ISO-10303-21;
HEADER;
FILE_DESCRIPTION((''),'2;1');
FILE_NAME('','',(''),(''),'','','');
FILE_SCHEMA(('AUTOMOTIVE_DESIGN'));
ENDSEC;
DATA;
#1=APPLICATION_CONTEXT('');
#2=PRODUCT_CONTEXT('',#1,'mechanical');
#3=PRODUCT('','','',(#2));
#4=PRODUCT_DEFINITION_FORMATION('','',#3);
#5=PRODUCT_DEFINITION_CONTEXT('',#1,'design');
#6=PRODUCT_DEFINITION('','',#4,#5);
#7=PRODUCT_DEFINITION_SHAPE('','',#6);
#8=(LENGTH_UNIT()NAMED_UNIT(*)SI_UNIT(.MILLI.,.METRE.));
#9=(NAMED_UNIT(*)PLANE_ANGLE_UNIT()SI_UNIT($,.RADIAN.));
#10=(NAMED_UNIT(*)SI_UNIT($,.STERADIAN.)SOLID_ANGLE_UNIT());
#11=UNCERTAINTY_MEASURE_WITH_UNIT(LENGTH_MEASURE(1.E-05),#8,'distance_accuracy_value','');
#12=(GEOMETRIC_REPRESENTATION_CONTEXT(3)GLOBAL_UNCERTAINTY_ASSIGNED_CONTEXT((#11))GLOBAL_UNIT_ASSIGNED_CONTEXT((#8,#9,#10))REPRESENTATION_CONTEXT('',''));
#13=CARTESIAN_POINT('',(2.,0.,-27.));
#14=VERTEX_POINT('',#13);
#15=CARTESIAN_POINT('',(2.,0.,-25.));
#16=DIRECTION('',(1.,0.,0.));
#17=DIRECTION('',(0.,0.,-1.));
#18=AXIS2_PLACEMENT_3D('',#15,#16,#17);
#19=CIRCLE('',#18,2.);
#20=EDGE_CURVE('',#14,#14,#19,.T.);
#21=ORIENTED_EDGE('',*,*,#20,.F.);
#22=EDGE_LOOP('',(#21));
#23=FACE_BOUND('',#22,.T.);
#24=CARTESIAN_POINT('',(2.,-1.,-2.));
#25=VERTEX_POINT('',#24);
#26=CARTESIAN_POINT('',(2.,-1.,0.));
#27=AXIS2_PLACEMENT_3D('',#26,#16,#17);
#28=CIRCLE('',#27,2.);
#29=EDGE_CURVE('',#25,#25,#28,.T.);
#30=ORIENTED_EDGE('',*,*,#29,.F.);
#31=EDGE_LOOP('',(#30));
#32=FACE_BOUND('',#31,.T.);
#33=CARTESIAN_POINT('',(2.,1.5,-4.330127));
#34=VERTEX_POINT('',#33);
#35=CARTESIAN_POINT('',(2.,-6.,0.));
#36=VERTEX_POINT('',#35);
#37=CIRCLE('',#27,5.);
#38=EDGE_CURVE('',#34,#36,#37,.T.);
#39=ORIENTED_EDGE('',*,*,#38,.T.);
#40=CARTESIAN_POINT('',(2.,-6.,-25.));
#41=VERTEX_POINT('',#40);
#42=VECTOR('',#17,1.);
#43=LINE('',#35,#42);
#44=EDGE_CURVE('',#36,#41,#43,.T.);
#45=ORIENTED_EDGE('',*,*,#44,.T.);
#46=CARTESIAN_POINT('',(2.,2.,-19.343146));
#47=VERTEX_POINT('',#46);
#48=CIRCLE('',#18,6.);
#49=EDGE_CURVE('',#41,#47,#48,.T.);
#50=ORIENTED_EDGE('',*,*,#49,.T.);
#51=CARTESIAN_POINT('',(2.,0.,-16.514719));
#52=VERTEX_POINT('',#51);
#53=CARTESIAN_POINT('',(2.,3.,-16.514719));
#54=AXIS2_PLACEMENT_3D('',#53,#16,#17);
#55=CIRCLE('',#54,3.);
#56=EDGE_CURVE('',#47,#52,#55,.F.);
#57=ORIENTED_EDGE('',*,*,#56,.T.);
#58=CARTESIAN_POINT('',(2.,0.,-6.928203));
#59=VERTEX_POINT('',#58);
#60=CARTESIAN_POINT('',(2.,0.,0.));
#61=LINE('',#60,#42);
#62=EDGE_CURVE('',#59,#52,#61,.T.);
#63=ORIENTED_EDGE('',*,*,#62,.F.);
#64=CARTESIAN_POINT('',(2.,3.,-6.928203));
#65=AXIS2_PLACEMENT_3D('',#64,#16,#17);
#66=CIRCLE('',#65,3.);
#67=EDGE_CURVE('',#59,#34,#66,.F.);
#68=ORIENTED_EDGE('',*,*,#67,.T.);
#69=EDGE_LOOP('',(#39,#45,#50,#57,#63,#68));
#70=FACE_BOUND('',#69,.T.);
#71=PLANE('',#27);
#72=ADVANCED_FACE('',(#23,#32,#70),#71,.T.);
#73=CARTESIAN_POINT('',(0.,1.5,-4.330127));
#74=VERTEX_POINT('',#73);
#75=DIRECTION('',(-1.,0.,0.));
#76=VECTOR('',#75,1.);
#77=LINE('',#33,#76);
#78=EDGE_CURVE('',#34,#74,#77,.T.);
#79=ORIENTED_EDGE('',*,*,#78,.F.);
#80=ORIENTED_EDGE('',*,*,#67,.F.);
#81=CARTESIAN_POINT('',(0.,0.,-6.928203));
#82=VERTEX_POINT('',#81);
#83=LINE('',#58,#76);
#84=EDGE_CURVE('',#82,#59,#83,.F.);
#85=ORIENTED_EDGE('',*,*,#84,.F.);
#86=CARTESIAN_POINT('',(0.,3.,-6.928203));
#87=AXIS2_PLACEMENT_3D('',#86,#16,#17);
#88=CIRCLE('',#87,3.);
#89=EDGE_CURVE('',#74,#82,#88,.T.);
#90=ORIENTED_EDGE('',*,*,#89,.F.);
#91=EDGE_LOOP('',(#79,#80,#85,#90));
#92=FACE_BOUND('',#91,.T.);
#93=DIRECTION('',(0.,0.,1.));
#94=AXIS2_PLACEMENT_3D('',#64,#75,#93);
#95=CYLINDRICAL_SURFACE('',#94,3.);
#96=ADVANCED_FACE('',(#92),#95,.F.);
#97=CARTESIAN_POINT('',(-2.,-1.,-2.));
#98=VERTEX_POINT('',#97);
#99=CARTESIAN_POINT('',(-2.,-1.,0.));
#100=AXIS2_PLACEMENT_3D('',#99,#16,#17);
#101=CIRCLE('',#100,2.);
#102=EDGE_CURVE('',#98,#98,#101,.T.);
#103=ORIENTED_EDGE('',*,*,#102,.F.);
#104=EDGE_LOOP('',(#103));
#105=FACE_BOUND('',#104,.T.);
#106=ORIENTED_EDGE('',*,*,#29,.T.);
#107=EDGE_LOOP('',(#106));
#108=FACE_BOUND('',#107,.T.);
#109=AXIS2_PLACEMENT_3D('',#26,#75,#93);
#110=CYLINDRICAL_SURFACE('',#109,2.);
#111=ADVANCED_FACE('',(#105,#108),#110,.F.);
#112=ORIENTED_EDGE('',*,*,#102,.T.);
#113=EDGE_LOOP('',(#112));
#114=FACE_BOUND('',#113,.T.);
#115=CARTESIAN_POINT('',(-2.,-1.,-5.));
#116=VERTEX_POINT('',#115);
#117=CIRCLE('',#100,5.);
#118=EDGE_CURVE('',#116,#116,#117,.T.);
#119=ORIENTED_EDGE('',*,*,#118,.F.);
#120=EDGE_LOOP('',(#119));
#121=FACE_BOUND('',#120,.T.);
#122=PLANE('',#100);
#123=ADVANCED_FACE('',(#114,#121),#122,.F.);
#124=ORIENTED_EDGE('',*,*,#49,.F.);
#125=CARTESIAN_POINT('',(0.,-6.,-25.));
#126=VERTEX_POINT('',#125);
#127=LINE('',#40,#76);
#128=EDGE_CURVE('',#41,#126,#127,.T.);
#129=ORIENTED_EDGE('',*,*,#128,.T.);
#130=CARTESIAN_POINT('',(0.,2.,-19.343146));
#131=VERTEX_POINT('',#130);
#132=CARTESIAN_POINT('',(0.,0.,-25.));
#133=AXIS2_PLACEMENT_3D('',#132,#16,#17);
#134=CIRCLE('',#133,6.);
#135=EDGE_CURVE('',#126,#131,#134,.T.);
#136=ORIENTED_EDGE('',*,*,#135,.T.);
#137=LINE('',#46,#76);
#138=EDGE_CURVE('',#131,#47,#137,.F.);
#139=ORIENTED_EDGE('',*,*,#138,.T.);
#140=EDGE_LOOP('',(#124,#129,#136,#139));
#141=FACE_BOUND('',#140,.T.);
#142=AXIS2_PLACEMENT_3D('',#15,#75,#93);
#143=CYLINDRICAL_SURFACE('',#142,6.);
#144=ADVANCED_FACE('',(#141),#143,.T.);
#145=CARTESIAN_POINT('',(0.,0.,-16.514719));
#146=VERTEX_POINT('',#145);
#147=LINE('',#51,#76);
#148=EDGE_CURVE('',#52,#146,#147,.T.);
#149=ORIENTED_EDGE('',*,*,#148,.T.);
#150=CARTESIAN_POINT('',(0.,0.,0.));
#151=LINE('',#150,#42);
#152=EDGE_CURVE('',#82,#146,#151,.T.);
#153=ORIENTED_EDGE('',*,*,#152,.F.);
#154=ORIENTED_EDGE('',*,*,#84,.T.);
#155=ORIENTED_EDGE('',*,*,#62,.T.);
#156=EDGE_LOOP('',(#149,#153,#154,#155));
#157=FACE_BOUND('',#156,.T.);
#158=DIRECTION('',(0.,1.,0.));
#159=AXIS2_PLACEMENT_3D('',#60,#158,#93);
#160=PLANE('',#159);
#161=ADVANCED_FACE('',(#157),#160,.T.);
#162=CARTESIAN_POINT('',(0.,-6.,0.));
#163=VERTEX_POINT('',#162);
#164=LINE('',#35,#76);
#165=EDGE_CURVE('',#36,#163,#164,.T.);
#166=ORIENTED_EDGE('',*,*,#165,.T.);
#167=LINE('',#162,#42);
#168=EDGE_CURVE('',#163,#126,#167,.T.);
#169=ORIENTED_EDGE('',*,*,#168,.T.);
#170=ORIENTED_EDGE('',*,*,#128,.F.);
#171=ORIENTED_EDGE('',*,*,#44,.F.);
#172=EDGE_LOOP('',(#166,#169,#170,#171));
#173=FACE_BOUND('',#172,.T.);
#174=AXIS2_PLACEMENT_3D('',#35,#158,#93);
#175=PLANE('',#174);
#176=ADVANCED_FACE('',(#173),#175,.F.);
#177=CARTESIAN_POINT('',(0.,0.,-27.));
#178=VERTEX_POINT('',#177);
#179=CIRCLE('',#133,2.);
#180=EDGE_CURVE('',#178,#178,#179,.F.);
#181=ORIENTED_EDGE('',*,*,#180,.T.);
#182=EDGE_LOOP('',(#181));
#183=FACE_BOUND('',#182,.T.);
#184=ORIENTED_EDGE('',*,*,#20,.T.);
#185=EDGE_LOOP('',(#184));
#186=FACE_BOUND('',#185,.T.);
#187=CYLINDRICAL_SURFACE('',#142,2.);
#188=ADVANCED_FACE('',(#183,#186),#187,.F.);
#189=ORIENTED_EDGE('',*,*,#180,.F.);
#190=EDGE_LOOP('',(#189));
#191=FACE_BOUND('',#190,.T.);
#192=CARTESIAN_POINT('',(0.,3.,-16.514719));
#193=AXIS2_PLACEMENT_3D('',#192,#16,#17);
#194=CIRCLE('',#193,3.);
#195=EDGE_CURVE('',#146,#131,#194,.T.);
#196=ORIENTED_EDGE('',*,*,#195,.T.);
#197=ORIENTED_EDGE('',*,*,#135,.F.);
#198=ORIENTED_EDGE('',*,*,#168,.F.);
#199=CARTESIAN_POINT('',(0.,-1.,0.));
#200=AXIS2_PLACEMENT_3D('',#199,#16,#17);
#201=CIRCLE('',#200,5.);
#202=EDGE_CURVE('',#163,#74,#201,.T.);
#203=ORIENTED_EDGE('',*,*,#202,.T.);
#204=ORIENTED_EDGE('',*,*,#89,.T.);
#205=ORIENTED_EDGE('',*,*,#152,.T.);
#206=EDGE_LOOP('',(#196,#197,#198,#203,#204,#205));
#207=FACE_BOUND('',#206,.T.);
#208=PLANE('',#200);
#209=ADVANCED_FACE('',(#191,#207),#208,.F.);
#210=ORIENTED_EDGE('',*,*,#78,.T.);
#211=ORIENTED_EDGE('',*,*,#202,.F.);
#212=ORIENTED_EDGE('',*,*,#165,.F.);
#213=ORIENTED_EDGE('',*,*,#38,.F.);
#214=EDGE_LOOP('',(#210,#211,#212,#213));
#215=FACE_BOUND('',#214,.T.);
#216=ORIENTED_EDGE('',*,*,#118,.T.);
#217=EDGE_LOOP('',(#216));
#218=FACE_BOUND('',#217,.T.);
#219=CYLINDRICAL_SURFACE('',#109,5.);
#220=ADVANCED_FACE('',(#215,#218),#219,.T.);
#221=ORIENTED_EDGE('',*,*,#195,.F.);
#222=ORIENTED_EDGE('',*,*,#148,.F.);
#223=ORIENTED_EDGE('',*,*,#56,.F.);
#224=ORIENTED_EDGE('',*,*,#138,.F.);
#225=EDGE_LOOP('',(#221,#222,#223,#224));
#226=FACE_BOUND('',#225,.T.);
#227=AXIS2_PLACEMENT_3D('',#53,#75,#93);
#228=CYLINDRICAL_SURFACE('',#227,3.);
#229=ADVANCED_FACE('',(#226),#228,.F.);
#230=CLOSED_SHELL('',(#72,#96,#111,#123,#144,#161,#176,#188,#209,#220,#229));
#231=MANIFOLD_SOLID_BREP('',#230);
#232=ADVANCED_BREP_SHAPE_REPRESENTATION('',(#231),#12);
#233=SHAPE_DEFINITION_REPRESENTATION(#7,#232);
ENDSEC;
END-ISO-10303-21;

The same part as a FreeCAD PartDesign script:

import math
import FreeCAD as App
import Part
import Sketcher
from FreeCAD import Vector
Q = App.Units.Quantity


def edges_at(feature, points):
    """Names of the edges that pass closest to the given points."""
    edges = feature.Shape.Edges
    near = lambda p: min(range(len(edges)), key=lambda i: edges[i].distToShape(Part.Vertex(*p))[0])
    return sorted({f"Edge{near(p) + 1}" for p in points})

doc = App.newDocument("Part")
body = doc.addObject("PartDesign::Body", "Body")

# Sketch on YZ plane
sketch1 = body.newObject("Sketcher::SketchObject", "Sketch")
sketch1.AttachmentSupport = (doc.getObject("YZ_Plane"), [""])
sketch1.MapMode = "FlatFace"
sketch1.addGeometry(Part.ArcOfCircle(Part.Circle(Vector(-1, 0, 0), Vector(0, 0, 1), 5), math.radians(-78), math.radians(180)), False)
sketch1.addGeometry(Part.LineSegment(Vector(-6, 0, 0), Vector(-6, -25, 0)), False)
sketch1.addGeometry(Part.ArcOfCircle(Part.Circle(Vector(0, -25, 0), Vector(0, 0, 1), 6), math.radians(180), math.radians(450)), False)
sketch1.addGeometry(Part.LineSegment(Vector(0, -19, 0), Vector(0, -5, 0)), False)
sketch1.addConstraint(Sketcher.Constraint("Tangent", 0, 2, 1, 1))
sketch1.addConstraint(Sketcher.Constraint("Tangent", 1, 2, 2, 1))
sketch1.addConstraint(Sketcher.Constraint("Coincident", 2, 2, 3, 1))
sketch1.addConstraint(Sketcher.Constraint("Coincident", 3, 2, 0, 1))
sketch1.addConstraint(Sketcher.Constraint("Vertical", 1))
sketch1.addConstraint(Sketcher.Constraint("Vertical", 3))
sketch1.addConstraint(Sketcher.Constraint("PointOnObject", 0, 3, -1))
sketch1.addConstraint(Sketcher.Constraint("PointOnObject", 2, 3, -2))
sketch1.addConstraint(Sketcher.Constraint("PointOnObject", 2, 2, -2))
sketch1.addConstraint(Sketcher.Constraint("Radius", 0, Q("5 mm")))
sketch1.addConstraint(Sketcher.Constraint("Radius", 2, Q("6 mm")))
sketch1.addConstraint(Sketcher.Constraint("DistanceY", 1, 2, 1, 1, Q("25 mm")))
pad1 = body.newObject("PartDesign::Pad", "Pad")
pad1.Profile = sketch1
pad1.Length = 2

# Sketch on YZ plane
sketch2 = body.newObject("Sketcher::SketchObject", "Sketch001")
sketch2.AttachmentSupport = (doc.getObject("YZ_Plane"), [""])
sketch2.MapMode = "FlatFace"
sketch2.AttachmentOffset = App.Placement(Vector(0, 0, -2), App.Rotation())
sketch2.addGeometry(Part.Circle(Vector(-1, 0, 0), Vector(0, 0, 1), 5), False)
sketch2.addConstraint(Sketcher.Constraint("PointOnObject", 0, 3, -1))
sketch2.addConstraint(Sketcher.Constraint("Diameter", 0, Q("10 mm")))
sketch2.addConstraint(Sketcher.Constraint("DistanceX", 0, 3, -1, 1, Q("1 mm")))
pad2 = body.newObject("PartDesign::Pad", "Pad001")
pad2.Profile = sketch2
pad2.Length = 2

# Sketch on YZ plane
sketch3 = body.newObject("Sketcher::SketchObject", "Sketch002")
sketch3.AttachmentSupport = (doc.getObject("YZ_Plane"), [""])
sketch3.MapMode = "FlatFace"
sketch3.addGeometry(Part.Circle(Vector(-1, 0, 0), Vector(0, 0, 1), 2), False)
sketch3.addGeometry(Part.Circle(Vector(0, -25, 0), Vector(0, 0, 1), 2), False)
sketch3.addConstraint(Sketcher.Constraint("Equal", 0, 1))
sketch3.addConstraint(Sketcher.Constraint("PointOnObject", 0, 3, -1))
sketch3.addConstraint(Sketcher.Constraint("PointOnObject", 1, 3, -2))
sketch3.addConstraint(Sketcher.Constraint("Diameter", 0, Q("4 mm")))
sketch3.addConstraint(Sketcher.Constraint("DistanceX", 0, 3, -1, 1, Q("1 mm")))
sketch3.addConstraint(Sketcher.Constraint("DistanceY", 1, 3, -1, 1, Q("25 mm")))
pocket1 = body.newObject("PartDesign::Pocket", "Pocket")
pocket1.Profile = sketch3
pocket1.Type = "ThroughAll"
pocket1.Midplane = True
doc.recompute()

fillet = body.newObject("PartDesign::Fillet", "Fillet")
fillet.Base = (pocket1, edges_at(pocket1, [(1, 0, -19), (1, 0, -4.899)]))
fillet.Radius = 3

doc.recompute()
